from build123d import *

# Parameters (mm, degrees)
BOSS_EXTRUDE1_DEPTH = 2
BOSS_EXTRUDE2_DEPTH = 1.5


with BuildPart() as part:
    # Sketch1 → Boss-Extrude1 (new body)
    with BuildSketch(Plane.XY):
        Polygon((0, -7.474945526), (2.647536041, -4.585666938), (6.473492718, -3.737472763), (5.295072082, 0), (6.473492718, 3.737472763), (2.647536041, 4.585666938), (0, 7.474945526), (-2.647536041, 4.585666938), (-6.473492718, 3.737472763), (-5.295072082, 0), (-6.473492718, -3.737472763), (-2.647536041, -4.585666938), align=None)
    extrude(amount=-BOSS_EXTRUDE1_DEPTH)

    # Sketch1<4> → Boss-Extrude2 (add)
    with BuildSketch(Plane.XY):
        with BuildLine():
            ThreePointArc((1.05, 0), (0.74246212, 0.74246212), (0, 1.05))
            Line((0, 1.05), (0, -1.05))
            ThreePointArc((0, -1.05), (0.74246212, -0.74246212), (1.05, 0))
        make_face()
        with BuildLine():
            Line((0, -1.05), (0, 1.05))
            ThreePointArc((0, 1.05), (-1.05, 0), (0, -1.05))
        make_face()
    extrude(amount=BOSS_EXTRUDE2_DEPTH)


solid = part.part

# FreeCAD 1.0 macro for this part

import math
import FreeCAD as App
import Part
import Sketcher
from FreeCAD import Vector
Q = App.Units.Quantity


def add_polygon(sketch, points):
    """Adds a closed chain of lines whose ends are joined by coincident constraints."""
    first, n = sketch.GeometryCount, len(points)
    for a, b in zip(points, points[1:] + points[:1]):
        sketch.addGeometry(Part.LineSegment(App.Vector(*a, 0), App.Vector(*b, 0)), False)
    for i in range(n):
        sketch.addConstraint(Sketcher.Constraint("Coincident", first + i, 2, first + (i + 1) % n, 1))

doc = App.newDocument("Part")
params = doc.addObject("Spreadsheet::Sheet", "Params")
for row, (alias, value) in enumerate([
    ("pad1_length", "2 mm"),
    ("sketch2_radius", "1.05 mm"),
    ("pad2_length", "1.5 mm"),
], start=1):
    params.set(f"A{row}", alias)
    params.set(f"B{row}", "=" + value)
    params.setAlias(f"B{row}", alias)

body = doc.addObject("PartDesign::Body", "Body")

# Sketch on XY plane
sketch1 = body.newObject("Sketcher::SketchObject", "Sketch")
sketch1.AttachmentSupport = (doc.getObject("XY_Plane"), [""])
sketch1.MapMode = "FlatFace"
add_polygon(sketch1, [(0, -7.474946), (2.647536, -4.585667), (6.473493, -3.737473), (5.295072, 0), (6.473493, 3.737473), (2.647536, 4.585667), (0, 7.474946), (-2.647536, 4.585667), (-6.473493, 3.737473), (-5.295072, 0), (-6.473493, -3.737473), (-2.647536, -4.585667)])  # lines 0-11
sketch1.addConstraint([
    Sketcher.Constraint("Symmetric", 0, 2, 6, 2, -1, 1),
    Sketcher.Constraint("Symmetric", 1, 2, 7, 2, -1, 1),
    Sketcher.Constraint("Symmetric", 2, 2, 8, 2, -1, 1),
    Sketcher.Constraint("Symmetric", 3, 2, 9, 2, -1, 1),
    Sketcher.Constraint("Symmetric", 4, 2, 10, 2, -1, 1),
    Sketcher.Constraint("Symmetric", 5, 2, 11, 2, -1, 1),
    Sketcher.Constraint("Symmetric", 4, 2, 6, 2, -2),
    Sketcher.Constraint("Symmetric", 3, 2, 7, 2, -2),
    Sketcher.Constraint("PointOnObject", 2, 2, -1),
    Sketcher.Constraint("PointOnObject", 5, 2, -2),
    Sketcher.Constraint("Equal", 0, 1),
    Sketcher.Constraint("Equal", 1, 2),
    Sketcher.Constraint("Angle", 0, Q("47.5 deg")),
    Sketcher.Constraint("Angle", 1, Q("12.5 deg")),
    Sketcher.Constraint("Angle", 2, Q("107.5 deg")),
    Sketcher.Constraint("Distance", 0, 3.918849),
])
pad1 = body.newObject("PartDesign::Pad", "Pad")
pad1.Profile = sketch1
pad1.setExpression("Length", "Params.pad1_length")
pad1.Reversed = True

# Sketch on XY plane
sketch2 = body.newObject("Sketcher::SketchObject", "Sketch001")
sketch2.AttachmentSupport = (doc.getObject("XY_Plane"), [""])
sketch2.MapMode = "FlatFace"
sketch2.addGeometry([
    Part.ArcOfCircle(Part.Circle(Vector(0, 0, 0), Vector(0, 0, 1), 1.05), math.radians(0), math.radians(90)),
    Part.ArcOfCircle(Part.Circle(Vector(0, 0, 0), Vector(0, 0, 1), 1.05), math.radians(90), math.radians(270)),
    Part.ArcOfCircle(Part.Circle(Vector(0, 0, 0), Vector(0, 0, 1), 1.05), math.radians(-90), math.radians(0)),
], False)
sketch2.addConstraint([
    Sketcher.Constraint("Tangent", 0, 2, 1, 1),
    Sketcher.Constraint("Tangent", 1, 2, 2, 1),
    Sketcher.Constraint("Tangent", 2, 2, 0, 1),
    Sketcher.Constraint("Coincident", 0, 3, -1, 1),
    Sketcher.Constraint("PointOnObject", 0, 2, -2),
    Sketcher.Constraint("PointOnObject", 1, 2, -2),
    Sketcher.Constraint("PointOnObject", 2, 2, -1),
    Sketcher.Constraint("Radius", 0, 1.05),
])
sketch2.setExpression("Constraints[7]", "Params.sketch2_radius")
pad2 = body.newObject("PartDesign::Pad", "Pad001")
pad2.Profile = sketch2
pad2.setExpression("Length", "Params.pad2_length")

doc.recompute()
